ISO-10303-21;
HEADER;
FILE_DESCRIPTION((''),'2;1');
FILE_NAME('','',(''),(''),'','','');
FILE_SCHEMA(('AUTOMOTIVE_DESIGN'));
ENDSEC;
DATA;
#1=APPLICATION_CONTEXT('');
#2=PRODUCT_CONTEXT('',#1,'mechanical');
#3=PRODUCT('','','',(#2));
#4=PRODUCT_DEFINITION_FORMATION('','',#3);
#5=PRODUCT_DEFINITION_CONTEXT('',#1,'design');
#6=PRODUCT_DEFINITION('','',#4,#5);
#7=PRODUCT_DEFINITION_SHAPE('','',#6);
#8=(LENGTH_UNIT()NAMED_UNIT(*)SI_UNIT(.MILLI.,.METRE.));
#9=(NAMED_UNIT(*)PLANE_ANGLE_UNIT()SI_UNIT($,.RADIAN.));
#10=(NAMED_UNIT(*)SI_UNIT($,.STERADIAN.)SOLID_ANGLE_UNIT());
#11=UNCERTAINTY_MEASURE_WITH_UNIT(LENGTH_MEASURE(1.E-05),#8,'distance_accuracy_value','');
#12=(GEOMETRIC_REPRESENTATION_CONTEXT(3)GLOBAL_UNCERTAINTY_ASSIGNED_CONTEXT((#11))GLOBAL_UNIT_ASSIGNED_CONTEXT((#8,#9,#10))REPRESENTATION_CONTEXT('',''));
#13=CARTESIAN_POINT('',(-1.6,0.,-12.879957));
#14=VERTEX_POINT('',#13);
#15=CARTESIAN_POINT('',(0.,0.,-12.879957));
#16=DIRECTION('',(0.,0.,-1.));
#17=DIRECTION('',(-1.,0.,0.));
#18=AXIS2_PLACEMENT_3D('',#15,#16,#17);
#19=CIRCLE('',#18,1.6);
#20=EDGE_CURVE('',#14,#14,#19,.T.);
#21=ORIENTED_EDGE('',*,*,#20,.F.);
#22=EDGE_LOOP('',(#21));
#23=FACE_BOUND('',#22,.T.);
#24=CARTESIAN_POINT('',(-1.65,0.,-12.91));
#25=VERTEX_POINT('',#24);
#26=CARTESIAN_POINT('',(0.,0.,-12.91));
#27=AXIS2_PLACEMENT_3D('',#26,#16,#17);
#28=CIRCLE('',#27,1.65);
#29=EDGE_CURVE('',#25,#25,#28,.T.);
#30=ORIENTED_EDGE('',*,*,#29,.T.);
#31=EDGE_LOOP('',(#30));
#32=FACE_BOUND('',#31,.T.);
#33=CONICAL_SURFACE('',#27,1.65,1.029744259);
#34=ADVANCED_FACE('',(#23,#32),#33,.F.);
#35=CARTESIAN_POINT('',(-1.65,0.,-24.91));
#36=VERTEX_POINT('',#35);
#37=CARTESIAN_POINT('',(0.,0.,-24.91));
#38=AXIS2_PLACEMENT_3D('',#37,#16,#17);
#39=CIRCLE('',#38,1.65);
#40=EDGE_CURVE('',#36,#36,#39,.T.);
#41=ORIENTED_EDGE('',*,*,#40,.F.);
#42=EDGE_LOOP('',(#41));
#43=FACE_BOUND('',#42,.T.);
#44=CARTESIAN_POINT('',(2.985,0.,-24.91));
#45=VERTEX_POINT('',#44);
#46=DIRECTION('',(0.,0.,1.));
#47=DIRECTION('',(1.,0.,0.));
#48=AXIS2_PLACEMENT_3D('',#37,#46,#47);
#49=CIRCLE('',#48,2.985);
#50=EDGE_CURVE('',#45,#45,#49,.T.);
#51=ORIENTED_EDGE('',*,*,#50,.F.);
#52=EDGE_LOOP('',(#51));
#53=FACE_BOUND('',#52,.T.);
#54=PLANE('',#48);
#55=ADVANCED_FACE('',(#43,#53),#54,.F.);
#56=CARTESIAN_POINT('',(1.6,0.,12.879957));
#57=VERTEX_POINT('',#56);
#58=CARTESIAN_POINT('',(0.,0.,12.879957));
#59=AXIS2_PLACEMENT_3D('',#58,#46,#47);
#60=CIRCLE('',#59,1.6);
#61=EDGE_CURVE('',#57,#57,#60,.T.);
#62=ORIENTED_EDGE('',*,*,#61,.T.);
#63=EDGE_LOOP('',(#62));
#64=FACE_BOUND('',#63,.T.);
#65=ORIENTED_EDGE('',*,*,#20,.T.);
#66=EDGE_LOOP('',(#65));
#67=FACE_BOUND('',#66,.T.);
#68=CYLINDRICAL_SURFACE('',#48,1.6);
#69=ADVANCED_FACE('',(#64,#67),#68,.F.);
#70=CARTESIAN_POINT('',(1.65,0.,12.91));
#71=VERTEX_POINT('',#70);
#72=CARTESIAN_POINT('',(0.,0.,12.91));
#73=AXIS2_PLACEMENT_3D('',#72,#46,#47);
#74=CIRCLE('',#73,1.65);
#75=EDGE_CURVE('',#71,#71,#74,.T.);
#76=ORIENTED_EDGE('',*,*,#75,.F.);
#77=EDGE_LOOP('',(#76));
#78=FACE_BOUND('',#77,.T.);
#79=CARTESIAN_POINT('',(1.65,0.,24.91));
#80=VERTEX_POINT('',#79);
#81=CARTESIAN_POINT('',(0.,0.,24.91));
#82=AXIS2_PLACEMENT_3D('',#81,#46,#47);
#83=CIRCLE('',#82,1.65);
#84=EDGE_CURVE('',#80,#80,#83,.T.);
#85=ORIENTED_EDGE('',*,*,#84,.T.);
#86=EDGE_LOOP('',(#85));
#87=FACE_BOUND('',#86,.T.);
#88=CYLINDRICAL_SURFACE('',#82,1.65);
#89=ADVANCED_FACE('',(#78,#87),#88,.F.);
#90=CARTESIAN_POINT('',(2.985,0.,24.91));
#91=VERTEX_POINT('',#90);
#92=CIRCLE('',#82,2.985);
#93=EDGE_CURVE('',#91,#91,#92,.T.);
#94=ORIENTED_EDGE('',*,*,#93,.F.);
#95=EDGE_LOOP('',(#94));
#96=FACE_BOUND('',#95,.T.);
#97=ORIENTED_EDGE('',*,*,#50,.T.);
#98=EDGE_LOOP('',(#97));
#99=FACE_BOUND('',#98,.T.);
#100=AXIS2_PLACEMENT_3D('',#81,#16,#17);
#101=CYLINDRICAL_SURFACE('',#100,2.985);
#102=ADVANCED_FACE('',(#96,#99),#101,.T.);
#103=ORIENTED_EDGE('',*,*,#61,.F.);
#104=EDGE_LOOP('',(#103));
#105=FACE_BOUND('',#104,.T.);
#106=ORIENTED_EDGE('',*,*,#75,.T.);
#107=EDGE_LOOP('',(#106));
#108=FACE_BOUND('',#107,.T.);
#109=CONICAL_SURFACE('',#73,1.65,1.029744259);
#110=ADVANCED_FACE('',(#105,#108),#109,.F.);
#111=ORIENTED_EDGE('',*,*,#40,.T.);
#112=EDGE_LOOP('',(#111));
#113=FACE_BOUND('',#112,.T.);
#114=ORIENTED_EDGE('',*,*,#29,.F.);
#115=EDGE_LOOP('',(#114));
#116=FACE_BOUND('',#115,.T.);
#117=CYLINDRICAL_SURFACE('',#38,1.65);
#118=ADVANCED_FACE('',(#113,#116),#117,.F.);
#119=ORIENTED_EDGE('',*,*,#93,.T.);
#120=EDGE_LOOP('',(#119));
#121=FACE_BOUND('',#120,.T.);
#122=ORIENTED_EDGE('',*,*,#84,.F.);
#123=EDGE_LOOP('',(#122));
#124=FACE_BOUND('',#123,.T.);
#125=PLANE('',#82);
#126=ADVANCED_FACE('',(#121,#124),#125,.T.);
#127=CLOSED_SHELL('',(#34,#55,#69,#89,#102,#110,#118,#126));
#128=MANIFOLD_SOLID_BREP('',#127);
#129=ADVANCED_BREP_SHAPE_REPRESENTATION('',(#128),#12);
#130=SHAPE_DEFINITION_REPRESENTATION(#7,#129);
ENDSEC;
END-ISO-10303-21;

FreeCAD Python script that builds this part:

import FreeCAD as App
import Part
import Sketcher
from FreeCAD import Vector
Q = App.Units.Quantity


def add_polygon(sketch, points):
    """Adds a closed chain of lines whose ends are joined by coincident constraints."""
    first, n = sketch.GeometryCount, len(points)
    for a, b in zip(points, points[1:] + points[:1]):
        sketch.addGeometry(Part.LineSegment(App.Vector(*a, 0), App.Vector(*b, 0)), False)
    for i in range(n):
        sketch.addConstraint(Sketcher.Constraint("Coincident", first + i, 2, first + (i + 1) % n, 1))

doc = App.newDocument("Part")
body = doc.addObject("PartDesign::Body", "Body")

# Sketch on XY plane
sketch1 = body.newObject("Sketcher::SketchObject", "Sketch")
sketch1.AttachmentSupport = (doc.getObject("XY_Plane"), [""])
sketch1.MapMode = "FlatFace"
sketch1.addGeometry(Part.Circle(Vector(0, 0, 0), Vector(0, 0, 1), 3), False)
sketch1.addConstraint(Sketcher.Constraint("Coincident", 0, 3, -1, 1))
sketch1.addConstraint(Sketcher.Constraint("Diameter", 0, Q("5.97 mm")))
pad1 = body.newObject("PartDesign::Pad", "Pad")
pad1.Profile = sketch1
pad1.Length = 49.82
pad1.Midplane = True

# Sketch on XY plane
sketch2 = body.newObject("Sketcher::SketchObject", "Sketch001")
sketch2.AttachmentSupport = (doc.getObject("XY_Plane"), [""])
sketch2.MapMode = "FlatFace"
sketch2.AttachmentOffset = App.Placement(Vector(0, 0, 24.91), App.Rotation())
sketch2.addGeometry(Part.Circle(Vector(0, 0, 0), Vector(0, 0, 1), 1.6), False)
sketch2.addConstraint(Sketcher.Constraint("Coincident", 0, 3, -1, 1))
sketch2.addConstraint(Sketcher.Constraint("Diameter", 0, Q("3.2 mm")))
pocket1 = body.newObject("PartDesign::Pocket", "Pocket")
pocket1.Profile = sketch2
pocket1.Type = "ThroughAll"

# Sketch on YZ plane
sketch3 = body.newObject("Sketcher::SketchObject", "Sketch002")
sketch3.AttachmentSupport = (doc.getObject("YZ_Plane"), [""])
sketch3.MapMode = "FlatFace"
add_polygon(sketch3, [(0, 11.9), (0, 24.9), (-1.6, 24.9), (-1.6, 12.9)])  # lines 0-3
sketch3.addConstraint(Sketcher.Constraint("Vertical", 0))
sketch3.addConstraint(Sketcher.Constraint("Horizontal", 1))
sketch3.addConstraint(Sketcher.Constraint("Vertical", 2))
sketch3.addConstraint(Sketcher.Constraint("PointOnObject", 0, 2, -2))
sketch3.addConstraint(Sketcher.Constraint("DistanceY", 2, 2, 2, 1, Q("12 mm")))
sketch3.addConstraint(Sketcher.Constraint("Angle", 3, Q("-31 deg")))
sketch3.addConstraint(Sketcher.Constraint("DistanceX", 1, 2, 1, 1, Q("1.65 mm")))
sketch3.addConstraint(Sketcher.Constraint("DistanceY", -1, 1, 0, 2, Q("24.91 mm")))
groove = body.newObject("PartDesign::Groove", "Groove")
groove.Profile = sketch3
groove.ReferenceAxis = (sketch3, ["V_Axis"])
groove.Angle = 360
doc.recompute()

mirrored = body.newObject("PartDesign::Mirrored", "Mirrored")
mirrored.Originals = [groove]
mirrored.MirrorPlane = (doc.getObject("XY_Plane"), [""])
body.Tip = mirrored

doc.recompute()
